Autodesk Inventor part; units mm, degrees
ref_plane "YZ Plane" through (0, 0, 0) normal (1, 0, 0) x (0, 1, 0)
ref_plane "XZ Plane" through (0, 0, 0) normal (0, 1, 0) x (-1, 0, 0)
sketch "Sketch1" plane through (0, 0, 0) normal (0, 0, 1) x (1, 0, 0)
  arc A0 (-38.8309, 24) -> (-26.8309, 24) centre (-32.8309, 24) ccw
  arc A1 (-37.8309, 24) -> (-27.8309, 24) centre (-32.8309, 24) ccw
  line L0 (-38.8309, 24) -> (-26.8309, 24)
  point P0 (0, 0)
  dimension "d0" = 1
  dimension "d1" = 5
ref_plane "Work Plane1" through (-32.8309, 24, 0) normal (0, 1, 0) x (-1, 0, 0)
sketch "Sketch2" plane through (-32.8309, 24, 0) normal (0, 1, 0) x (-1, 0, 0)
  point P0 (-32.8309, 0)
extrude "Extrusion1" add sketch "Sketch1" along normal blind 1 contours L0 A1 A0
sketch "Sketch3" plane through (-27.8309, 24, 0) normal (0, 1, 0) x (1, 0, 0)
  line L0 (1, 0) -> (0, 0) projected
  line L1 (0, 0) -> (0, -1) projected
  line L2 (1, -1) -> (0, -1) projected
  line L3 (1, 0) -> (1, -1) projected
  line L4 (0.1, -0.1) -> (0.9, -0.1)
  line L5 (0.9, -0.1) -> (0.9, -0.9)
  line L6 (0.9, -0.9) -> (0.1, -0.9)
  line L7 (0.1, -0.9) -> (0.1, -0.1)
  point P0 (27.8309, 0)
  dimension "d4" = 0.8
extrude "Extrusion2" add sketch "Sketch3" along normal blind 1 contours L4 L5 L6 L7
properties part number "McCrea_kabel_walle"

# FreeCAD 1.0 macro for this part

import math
import FreeCAD as App
import Part
import Sketcher
from FreeCAD import Vector
Q = App.Units.Quantity


def add_polygon(sketch, points):
    """Adds a closed chain of lines whose ends are joined by coincident constraints."""
    first, n = sketch.GeometryCount, len(points)
    for a, b in zip(points, points[1:] + points[:1]):
        sketch.addGeometry(Part.LineSegment(App.Vector(*a, 0), App.Vector(*b, 0)), False)
    for i in range(n):
        sketch.addConstraint(Sketcher.Constraint("Coincident", first + i, 2, first + (i + 1) % n, 1))

doc = App.newDocument("Part")
params = doc.addObject("Spreadsheet::Sheet", "Params")
for row, (alias, value) in enumerate([
    ("sketch1_radius", "5 mm"),
    ("sketch1_width", "1 mm"),
    ("pad1_length", "1 mm"),
    ("sketch2_width", "0.8 mm"),
    ("pad2_length", "1 mm"),
], start=1):
    params.set(f"A{row}", alias)
    params.set(f"B{row}", "=" + value)
    params.setAlias(f"B{row}", alias)

body = doc.addObject("PartDesign::Body", "Body")

sketch1 = doc.addObject("Sketcher::SketchObject", "Sketch")
body.addObject(sketch1)
sketch1.AttachmentSupport = (doc.XY_Plane, [""])
sketch1.MapMode = "FlatFace"
sketch1.addGeometry([
    Part.LineSegment(Vector(-37.8, 24, 0), Vector(-38.8, 24, 0)),
    Part.ArcOfCircle(Part.Circle(Vector(-32.8, 24, 0), Vector(0, 0, 1), 6), math.radians(180), math.radians(360)),
    Part.LineSegment(Vector(-26.8, 24, 0), Vector(-27.8, 24, 0)),
    Part.ArcOfCircle(Part.Circle(Vector(-32.8, 24, 0), Vector(0, 0, 1), 5), math.radians(180), math.radians(360)),
], False)
sketch1.addConstraint([
    Sketcher.Constraint("Coincident", 0, 2, 1, 1),
    Sketcher.Constraint("Coincident", 1, 2, 2, 1),
    Sketcher.Constraint("Coincident", 2, 2, 3, 2),
    Sketcher.Constraint("Coincident", 3, 1, 0, 1),
    Sketcher.Constraint("Horizontal", 0),
    Sketcher.Constraint("Horizontal", 2),
    Sketcher.Constraint("Coincident", 3, 3, 1, 3),
    Sketcher.Constraint("Horizontal", 3, 3, 0, 2),
    Sketcher.Constraint("Horizontal", 0, 2, 1, 2),
    Sketcher.Constraint("Radius", 3, Q("5 mm")),
    Sketcher.Constraint("DistanceX", 0, 2, 0, 1, Q("1 mm")),
    Sketcher.Constraint("DistanceY", -1, 1, 1, 3, Q("24 mm")),
    Sketcher.Constraint("DistanceX", 1, 3, -1, 1, Q("32.831 mm")),
])
sketch1.setExpression("Constraints[9]", "Params.sketch1_radius")
sketch1.setExpression("Constraints[10]", "Params.sketch1_width")
pad1 = doc.addObject("PartDesign::Pad", "Pad")
body.addObject(pad1)
pad1.Profile = sketch1
pad1.setExpression("Length", "Params.pad1_length")

sketch2 = doc.addObject("Sketcher::SketchObject", "Sketch001")
body.addObject(sketch2)
sketch2.AttachmentSupport = (doc.XZ_Plane, [""])
sketch2.MapMode = "FlatFace"
sketch2.AttachmentOffset = App.Placement(Vector(0, 0, -24), App.Rotation())
add_polygon(sketch2, [(-26.9, 0.1), (-27.7, 0.1), (-27.7, 0.9), (-26.9, 0.9)])
sketch2.addConstraint([
    Sketcher.Constraint("Horizontal", 0),
    Sketcher.Constraint("Vertical", 1),
    Sketcher.Constraint("Horizontal", 2),
    Sketcher.Constraint("Vertical", 3),
    Sketcher.Constraint("Equal", 2, 1),
    Sketcher.Constraint("DistanceX", 0, 2, 0, 1, Q("0.8 mm")),
    Sketcher.Constraint("DistanceY", -1, 1, 0, 2, Q("0.1 mm")),
    Sketcher.Constraint("DistanceX", 0, 2, -1, 1, Q("27.731 mm")),
])
sketch2.setExpression("Constraints[9]", "Params.sketch2_width")
pad2 = doc.addObject("PartDesign::Pad", "Pad001")
body.addObject(pad2)
pad2.Profile = sketch2
pad2.setExpression("Length", "Params.pad2_length")
pad2.Reversed = True

doc.recompute()
